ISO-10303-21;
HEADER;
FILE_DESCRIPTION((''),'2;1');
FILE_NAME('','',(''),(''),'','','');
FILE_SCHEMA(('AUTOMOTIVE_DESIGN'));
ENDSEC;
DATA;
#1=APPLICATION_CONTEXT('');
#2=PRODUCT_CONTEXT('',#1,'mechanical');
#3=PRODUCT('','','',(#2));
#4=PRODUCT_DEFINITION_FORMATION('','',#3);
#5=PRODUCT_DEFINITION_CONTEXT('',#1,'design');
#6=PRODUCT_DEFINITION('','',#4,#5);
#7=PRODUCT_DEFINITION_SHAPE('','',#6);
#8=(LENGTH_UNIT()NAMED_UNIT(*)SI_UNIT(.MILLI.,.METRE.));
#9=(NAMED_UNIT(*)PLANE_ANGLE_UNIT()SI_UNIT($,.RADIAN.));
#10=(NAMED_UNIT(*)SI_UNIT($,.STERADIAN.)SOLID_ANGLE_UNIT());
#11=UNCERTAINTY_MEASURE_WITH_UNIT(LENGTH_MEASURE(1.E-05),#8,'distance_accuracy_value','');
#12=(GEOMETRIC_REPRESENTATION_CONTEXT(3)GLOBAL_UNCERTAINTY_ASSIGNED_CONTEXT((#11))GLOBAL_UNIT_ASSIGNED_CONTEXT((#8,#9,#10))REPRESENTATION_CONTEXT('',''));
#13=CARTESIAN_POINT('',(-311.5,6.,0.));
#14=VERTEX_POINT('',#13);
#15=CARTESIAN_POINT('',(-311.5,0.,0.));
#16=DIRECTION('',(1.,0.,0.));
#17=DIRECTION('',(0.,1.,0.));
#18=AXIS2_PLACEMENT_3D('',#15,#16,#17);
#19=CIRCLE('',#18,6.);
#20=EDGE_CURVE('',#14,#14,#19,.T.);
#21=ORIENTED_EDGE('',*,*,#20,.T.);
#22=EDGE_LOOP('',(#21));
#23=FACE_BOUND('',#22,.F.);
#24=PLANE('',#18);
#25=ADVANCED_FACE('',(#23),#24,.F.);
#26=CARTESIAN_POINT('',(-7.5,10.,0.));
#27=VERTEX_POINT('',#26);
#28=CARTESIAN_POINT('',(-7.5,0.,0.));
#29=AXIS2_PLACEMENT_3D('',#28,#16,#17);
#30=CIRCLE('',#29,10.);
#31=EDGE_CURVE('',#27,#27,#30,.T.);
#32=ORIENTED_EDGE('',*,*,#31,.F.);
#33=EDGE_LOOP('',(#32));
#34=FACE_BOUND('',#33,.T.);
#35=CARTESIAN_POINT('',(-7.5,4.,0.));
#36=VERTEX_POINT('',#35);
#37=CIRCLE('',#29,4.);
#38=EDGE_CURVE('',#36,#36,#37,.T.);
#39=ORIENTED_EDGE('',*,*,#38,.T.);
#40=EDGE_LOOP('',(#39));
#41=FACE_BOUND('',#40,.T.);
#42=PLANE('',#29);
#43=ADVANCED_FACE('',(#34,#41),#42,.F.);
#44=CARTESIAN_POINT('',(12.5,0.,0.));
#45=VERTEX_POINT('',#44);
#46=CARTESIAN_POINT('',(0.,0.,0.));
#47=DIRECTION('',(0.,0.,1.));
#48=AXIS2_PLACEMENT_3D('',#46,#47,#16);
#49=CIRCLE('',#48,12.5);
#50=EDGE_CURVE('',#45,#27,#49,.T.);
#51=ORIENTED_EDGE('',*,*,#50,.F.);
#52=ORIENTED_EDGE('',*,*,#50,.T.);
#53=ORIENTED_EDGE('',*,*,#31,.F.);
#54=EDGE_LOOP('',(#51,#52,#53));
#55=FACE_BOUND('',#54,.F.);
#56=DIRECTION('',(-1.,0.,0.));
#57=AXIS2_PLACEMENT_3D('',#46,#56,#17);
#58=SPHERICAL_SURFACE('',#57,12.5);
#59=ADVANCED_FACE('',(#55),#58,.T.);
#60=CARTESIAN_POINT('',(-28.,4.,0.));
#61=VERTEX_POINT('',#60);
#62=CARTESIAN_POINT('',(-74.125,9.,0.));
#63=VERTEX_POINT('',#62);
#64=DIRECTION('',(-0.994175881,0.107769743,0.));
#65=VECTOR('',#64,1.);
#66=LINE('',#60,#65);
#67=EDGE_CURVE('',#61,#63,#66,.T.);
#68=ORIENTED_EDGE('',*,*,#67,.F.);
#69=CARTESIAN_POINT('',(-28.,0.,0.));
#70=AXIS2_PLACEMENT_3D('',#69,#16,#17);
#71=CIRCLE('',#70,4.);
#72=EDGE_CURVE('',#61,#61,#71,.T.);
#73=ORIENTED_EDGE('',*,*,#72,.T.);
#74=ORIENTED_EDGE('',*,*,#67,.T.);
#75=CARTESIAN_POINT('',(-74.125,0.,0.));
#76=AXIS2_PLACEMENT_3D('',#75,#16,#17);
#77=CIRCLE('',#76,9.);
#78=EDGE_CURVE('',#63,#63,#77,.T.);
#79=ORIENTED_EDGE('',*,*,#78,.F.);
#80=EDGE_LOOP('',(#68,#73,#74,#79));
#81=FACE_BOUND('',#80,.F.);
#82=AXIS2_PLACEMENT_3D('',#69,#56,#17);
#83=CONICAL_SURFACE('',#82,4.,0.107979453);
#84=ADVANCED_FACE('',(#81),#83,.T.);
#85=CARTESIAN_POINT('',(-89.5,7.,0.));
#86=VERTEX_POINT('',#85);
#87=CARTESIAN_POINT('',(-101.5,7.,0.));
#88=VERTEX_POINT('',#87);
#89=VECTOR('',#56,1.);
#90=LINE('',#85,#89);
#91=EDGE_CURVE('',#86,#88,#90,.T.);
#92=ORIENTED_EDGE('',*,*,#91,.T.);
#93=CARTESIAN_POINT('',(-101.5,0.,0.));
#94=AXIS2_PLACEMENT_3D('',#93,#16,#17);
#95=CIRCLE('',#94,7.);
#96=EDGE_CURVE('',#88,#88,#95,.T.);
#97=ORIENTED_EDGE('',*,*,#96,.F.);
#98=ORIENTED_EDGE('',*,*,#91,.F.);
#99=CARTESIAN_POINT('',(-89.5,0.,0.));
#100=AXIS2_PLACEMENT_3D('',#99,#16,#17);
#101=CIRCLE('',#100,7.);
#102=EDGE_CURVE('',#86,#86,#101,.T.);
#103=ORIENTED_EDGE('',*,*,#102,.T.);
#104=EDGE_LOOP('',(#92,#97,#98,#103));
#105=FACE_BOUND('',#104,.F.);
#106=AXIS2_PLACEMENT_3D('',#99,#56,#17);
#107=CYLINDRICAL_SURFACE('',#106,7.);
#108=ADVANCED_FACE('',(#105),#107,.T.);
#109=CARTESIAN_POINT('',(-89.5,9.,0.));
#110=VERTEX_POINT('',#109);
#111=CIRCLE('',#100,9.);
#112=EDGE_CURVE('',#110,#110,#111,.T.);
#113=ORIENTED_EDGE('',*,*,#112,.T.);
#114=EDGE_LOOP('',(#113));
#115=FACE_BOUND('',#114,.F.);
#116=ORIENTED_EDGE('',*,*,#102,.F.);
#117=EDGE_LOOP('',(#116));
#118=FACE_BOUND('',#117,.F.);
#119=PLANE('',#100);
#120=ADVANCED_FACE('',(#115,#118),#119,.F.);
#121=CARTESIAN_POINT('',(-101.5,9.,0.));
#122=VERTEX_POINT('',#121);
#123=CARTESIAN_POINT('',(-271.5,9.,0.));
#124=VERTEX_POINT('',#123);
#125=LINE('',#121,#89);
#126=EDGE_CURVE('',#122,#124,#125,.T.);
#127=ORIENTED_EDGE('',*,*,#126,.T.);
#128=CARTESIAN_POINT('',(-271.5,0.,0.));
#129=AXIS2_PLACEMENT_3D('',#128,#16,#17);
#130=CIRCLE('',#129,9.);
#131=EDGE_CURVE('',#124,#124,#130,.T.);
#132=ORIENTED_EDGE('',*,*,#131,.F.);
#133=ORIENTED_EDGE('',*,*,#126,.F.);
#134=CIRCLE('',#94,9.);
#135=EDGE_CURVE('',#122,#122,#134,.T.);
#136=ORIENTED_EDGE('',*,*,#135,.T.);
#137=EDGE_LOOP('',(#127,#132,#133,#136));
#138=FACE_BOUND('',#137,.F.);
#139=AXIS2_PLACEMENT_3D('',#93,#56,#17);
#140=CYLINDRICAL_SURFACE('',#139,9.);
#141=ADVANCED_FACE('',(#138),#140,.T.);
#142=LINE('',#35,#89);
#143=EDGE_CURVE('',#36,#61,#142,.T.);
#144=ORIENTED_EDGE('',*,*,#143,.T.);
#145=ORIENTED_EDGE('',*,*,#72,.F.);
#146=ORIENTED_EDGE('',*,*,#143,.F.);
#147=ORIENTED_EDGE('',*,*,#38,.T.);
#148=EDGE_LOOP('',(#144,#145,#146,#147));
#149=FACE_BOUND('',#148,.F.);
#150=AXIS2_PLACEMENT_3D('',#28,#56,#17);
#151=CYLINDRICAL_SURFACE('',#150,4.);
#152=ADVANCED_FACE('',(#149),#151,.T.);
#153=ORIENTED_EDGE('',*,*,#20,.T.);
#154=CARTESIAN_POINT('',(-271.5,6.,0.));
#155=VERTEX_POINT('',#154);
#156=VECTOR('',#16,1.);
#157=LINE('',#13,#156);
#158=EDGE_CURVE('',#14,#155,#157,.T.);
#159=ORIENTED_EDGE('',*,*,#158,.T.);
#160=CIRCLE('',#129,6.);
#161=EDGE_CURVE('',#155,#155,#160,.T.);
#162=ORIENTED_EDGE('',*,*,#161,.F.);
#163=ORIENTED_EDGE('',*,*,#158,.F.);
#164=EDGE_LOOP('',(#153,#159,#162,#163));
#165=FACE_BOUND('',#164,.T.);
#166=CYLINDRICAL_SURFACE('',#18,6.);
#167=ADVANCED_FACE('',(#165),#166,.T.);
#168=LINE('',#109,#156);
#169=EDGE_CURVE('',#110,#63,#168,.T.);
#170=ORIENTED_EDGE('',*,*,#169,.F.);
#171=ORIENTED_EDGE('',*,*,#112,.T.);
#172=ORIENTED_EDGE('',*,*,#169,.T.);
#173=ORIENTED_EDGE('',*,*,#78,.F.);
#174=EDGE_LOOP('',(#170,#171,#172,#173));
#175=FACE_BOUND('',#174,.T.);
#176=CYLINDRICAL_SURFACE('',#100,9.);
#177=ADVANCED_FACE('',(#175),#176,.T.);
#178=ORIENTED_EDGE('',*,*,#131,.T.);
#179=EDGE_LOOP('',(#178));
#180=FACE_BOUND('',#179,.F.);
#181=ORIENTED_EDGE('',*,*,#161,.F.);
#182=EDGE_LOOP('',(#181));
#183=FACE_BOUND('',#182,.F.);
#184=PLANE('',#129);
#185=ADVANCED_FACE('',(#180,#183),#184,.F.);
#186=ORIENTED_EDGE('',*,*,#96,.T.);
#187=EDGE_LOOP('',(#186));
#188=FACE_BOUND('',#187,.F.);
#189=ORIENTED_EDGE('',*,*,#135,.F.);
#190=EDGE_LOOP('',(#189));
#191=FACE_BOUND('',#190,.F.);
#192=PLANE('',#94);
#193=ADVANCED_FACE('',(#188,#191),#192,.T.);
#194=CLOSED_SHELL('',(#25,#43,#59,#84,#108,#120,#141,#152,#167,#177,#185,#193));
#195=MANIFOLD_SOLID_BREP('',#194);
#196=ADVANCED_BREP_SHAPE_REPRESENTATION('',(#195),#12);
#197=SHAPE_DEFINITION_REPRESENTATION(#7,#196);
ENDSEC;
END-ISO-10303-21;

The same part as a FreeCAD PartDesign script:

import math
import FreeCAD as App
import Part
import Sketcher

V = App.Vector
Q = App.Units.Quantity

doc = App.newDocument("Part")
body = doc.addObject("PartDesign::Body", "Body")

# Sketch on XY plane
sketch1 = body.newObject("Sketcher::SketchObject", "Sketch")
sketch1.AttachmentSupport = (doc.getObject("XY_Plane"), [""])
sketch1.MapMode = "FlatFace"
sketch1.addGeometry(Part.LineSegment(V(-7.5, 10, 0), V(-7.5, 4, 0)), False)
sketch1.addGeometry(Part.LineSegment(V(-7.5, 4, 0), V(-28, 4, 0)), False)
sketch1.addGeometry(Part.LineSegment(V(-28, 4, 0), V(-74.1, 9, 0)), False)
sketch1.addGeometry(Part.LineSegment(V(-74.1, 9, 0), V(-89.5, 9, 0)), False)
sketch1.addGeometry(Part.LineSegment(V(-89.5, 9, 0), V(-89.5, 7, 0)), False)
sketch1.addGeometry(Part.LineSegment(V(-89.5, 7, 0), V(-101.5, 7, 0)), False)
sketch1.addGeometry(Part.LineSegment(V(-101.5, 7, 0), V(-101.5, 9, 0)), False)
sketch1.addGeometry(Part.LineSegment(V(-101.5, 9, 0), V(-271.5, 9, 0)), False)
sketch1.addGeometry(Part.LineSegment(V(-271.5, 9, 0), V(-271.5, 6, 0)), False)
sketch1.addGeometry(Part.LineSegment(V(-271.5, 6, 0), V(-311.5, 6, 0)), False)
sketch1.addGeometry(Part.LineSegment(V(-311.5, 6, 0), V(-311.5, 0, 0)), False)
sketch1.addGeometry(Part.LineSegment(V(-311.5, 0, 0), V(12.5, 0, 0)), False)
sketch1.addGeometry(Part.ArcOfCircle(Part.Circle(V(0, 0, 0), V(0, 0, 1), 12.5), math.radians(0), math.radians(127)), False)
sketch1.addConstraint(Sketcher.Constraint("Coincident", 0, 2, 1, 1))
sketch1.addConstraint(Sketcher.Constraint("Coincident", 1, 2, 2, 1))
sketch1.addConstraint(Sketcher.Constraint("Coincident", 2, 2, 3, 1))
sketch1.addConstraint(Sketcher.Constraint("Coincident", 3, 2, 4, 1))
sketch1.addConstraint(Sketcher.Constraint("Coincident", 4, 2, 5, 1))
sketch1.addConstraint(Sketcher.Constraint("Coincident", 5, 2, 6, 1))
sketch1.addConstraint(Sketcher.Constraint("Coincident", 6, 2, 7, 1))
sketch1.addConstraint(Sketcher.Constraint("Coincident", 7, 2, 8, 1))
sketch1.addConstraint(Sketcher.Constraint("Coincident", 8, 2, 9, 1))
sketch1.addConstraint(Sketcher.Constraint("Coincident", 9, 2, 10, 1))
sketch1.addConstraint(Sketcher.Constraint("Coincident", 10, 2, 11, 1))
sketch1.addConstraint(Sketcher.Constraint("Coincident", 11, 2, 12, 1))
sketch1.addConstraint(Sketcher.Constraint("Coincident", 12, 2, 0, 1))
sketch1.addConstraint(Sketcher.Constraint("Vertical", 0))
sketch1.addConstraint(Sketcher.Constraint("Horizontal", 1))
sketch1.addConstraint(Sketcher.Constraint("Horizontal", 3))
sketch1.addConstraint(Sketcher.Constraint("Vertical", 4))
sketch1.addConstraint(Sketcher.Constraint("Horizontal", 5))
sketch1.addConstraint(Sketcher.Constraint("Vertical", 6))
sketch1.addConstraint(Sketcher.Constraint("Horizontal", 7))
sketch1.addConstraint(Sketcher.Constraint("Vertical", 8))
sketch1.addConstraint(Sketcher.Constraint("Horizontal", 9))
sketch1.addConstraint(Sketcher.Constraint("Vertical", 10))
sketch1.addConstraint(Sketcher.Constraint("Horizontal", 11))
sketch1.addConstraint(Sketcher.Constraint("Coincident", 12, 3, -1, 1))
sketch1.addConstraint(Sketcher.Constraint("PointOnObject", 10, 2, -1))
sketch1.addConstraint(Sketcher.Constraint("Horizontal", 3, 2, 6, 2))
sketch1.addConstraint(Sketcher.Constraint("Equal", 0, 10))
sketch1.addConstraint(Sketcher.Constraint("Radius", 12, Q("12.5 mm")))
sketch1.addConstraint(Sketcher.Constraint("DistanceX", 5, 2, 5, 1, Q("12 mm")))
sketch1.addConstraint(Sketcher.Constraint("DistanceX", 7, 2, 7, 1, Q("170 mm")))
sketch1.addConstraint(Sketcher.Constraint("DistanceX", 9, 2, 9, 1, Q("40 mm")))
sketch1.addConstraint(Sketcher.Constraint("DistanceY", 0, 2, 0, 1, Q("6 mm")))
sketch1.addConstraint(Sketcher.Constraint("DistanceY", -1, 1, 0, 2, Q("4 mm")))
sketch1.addConstraint(Sketcher.Constraint("DistanceY", -1, 1, 2, 2, Q("9 mm")))
sketch1.addConstraint(Sketcher.Constraint("DistanceY", -1, 1, 4, 2, Q("7 mm")))
sketch1.addConstraint(Sketcher.Constraint("DistanceX", 3, 2, 0, 2, Q("82 mm")))
sketch1.addConstraint(Sketcher.Constraint("DistanceX", 3, 2, 1, 2, Q("61.5 mm")))
sketch1.addConstraint(Sketcher.Constraint("DistanceX", 2, 2, 1, 2, Q("46.125 mm")))
revolution = body.newObject("PartDesign::Revolution", "Revolution")
revolution.Profile = sketch1
revolution.ReferenceAxis = (sketch1, ["H_Axis"])
revolution.Angle = 360

doc.recompute()
